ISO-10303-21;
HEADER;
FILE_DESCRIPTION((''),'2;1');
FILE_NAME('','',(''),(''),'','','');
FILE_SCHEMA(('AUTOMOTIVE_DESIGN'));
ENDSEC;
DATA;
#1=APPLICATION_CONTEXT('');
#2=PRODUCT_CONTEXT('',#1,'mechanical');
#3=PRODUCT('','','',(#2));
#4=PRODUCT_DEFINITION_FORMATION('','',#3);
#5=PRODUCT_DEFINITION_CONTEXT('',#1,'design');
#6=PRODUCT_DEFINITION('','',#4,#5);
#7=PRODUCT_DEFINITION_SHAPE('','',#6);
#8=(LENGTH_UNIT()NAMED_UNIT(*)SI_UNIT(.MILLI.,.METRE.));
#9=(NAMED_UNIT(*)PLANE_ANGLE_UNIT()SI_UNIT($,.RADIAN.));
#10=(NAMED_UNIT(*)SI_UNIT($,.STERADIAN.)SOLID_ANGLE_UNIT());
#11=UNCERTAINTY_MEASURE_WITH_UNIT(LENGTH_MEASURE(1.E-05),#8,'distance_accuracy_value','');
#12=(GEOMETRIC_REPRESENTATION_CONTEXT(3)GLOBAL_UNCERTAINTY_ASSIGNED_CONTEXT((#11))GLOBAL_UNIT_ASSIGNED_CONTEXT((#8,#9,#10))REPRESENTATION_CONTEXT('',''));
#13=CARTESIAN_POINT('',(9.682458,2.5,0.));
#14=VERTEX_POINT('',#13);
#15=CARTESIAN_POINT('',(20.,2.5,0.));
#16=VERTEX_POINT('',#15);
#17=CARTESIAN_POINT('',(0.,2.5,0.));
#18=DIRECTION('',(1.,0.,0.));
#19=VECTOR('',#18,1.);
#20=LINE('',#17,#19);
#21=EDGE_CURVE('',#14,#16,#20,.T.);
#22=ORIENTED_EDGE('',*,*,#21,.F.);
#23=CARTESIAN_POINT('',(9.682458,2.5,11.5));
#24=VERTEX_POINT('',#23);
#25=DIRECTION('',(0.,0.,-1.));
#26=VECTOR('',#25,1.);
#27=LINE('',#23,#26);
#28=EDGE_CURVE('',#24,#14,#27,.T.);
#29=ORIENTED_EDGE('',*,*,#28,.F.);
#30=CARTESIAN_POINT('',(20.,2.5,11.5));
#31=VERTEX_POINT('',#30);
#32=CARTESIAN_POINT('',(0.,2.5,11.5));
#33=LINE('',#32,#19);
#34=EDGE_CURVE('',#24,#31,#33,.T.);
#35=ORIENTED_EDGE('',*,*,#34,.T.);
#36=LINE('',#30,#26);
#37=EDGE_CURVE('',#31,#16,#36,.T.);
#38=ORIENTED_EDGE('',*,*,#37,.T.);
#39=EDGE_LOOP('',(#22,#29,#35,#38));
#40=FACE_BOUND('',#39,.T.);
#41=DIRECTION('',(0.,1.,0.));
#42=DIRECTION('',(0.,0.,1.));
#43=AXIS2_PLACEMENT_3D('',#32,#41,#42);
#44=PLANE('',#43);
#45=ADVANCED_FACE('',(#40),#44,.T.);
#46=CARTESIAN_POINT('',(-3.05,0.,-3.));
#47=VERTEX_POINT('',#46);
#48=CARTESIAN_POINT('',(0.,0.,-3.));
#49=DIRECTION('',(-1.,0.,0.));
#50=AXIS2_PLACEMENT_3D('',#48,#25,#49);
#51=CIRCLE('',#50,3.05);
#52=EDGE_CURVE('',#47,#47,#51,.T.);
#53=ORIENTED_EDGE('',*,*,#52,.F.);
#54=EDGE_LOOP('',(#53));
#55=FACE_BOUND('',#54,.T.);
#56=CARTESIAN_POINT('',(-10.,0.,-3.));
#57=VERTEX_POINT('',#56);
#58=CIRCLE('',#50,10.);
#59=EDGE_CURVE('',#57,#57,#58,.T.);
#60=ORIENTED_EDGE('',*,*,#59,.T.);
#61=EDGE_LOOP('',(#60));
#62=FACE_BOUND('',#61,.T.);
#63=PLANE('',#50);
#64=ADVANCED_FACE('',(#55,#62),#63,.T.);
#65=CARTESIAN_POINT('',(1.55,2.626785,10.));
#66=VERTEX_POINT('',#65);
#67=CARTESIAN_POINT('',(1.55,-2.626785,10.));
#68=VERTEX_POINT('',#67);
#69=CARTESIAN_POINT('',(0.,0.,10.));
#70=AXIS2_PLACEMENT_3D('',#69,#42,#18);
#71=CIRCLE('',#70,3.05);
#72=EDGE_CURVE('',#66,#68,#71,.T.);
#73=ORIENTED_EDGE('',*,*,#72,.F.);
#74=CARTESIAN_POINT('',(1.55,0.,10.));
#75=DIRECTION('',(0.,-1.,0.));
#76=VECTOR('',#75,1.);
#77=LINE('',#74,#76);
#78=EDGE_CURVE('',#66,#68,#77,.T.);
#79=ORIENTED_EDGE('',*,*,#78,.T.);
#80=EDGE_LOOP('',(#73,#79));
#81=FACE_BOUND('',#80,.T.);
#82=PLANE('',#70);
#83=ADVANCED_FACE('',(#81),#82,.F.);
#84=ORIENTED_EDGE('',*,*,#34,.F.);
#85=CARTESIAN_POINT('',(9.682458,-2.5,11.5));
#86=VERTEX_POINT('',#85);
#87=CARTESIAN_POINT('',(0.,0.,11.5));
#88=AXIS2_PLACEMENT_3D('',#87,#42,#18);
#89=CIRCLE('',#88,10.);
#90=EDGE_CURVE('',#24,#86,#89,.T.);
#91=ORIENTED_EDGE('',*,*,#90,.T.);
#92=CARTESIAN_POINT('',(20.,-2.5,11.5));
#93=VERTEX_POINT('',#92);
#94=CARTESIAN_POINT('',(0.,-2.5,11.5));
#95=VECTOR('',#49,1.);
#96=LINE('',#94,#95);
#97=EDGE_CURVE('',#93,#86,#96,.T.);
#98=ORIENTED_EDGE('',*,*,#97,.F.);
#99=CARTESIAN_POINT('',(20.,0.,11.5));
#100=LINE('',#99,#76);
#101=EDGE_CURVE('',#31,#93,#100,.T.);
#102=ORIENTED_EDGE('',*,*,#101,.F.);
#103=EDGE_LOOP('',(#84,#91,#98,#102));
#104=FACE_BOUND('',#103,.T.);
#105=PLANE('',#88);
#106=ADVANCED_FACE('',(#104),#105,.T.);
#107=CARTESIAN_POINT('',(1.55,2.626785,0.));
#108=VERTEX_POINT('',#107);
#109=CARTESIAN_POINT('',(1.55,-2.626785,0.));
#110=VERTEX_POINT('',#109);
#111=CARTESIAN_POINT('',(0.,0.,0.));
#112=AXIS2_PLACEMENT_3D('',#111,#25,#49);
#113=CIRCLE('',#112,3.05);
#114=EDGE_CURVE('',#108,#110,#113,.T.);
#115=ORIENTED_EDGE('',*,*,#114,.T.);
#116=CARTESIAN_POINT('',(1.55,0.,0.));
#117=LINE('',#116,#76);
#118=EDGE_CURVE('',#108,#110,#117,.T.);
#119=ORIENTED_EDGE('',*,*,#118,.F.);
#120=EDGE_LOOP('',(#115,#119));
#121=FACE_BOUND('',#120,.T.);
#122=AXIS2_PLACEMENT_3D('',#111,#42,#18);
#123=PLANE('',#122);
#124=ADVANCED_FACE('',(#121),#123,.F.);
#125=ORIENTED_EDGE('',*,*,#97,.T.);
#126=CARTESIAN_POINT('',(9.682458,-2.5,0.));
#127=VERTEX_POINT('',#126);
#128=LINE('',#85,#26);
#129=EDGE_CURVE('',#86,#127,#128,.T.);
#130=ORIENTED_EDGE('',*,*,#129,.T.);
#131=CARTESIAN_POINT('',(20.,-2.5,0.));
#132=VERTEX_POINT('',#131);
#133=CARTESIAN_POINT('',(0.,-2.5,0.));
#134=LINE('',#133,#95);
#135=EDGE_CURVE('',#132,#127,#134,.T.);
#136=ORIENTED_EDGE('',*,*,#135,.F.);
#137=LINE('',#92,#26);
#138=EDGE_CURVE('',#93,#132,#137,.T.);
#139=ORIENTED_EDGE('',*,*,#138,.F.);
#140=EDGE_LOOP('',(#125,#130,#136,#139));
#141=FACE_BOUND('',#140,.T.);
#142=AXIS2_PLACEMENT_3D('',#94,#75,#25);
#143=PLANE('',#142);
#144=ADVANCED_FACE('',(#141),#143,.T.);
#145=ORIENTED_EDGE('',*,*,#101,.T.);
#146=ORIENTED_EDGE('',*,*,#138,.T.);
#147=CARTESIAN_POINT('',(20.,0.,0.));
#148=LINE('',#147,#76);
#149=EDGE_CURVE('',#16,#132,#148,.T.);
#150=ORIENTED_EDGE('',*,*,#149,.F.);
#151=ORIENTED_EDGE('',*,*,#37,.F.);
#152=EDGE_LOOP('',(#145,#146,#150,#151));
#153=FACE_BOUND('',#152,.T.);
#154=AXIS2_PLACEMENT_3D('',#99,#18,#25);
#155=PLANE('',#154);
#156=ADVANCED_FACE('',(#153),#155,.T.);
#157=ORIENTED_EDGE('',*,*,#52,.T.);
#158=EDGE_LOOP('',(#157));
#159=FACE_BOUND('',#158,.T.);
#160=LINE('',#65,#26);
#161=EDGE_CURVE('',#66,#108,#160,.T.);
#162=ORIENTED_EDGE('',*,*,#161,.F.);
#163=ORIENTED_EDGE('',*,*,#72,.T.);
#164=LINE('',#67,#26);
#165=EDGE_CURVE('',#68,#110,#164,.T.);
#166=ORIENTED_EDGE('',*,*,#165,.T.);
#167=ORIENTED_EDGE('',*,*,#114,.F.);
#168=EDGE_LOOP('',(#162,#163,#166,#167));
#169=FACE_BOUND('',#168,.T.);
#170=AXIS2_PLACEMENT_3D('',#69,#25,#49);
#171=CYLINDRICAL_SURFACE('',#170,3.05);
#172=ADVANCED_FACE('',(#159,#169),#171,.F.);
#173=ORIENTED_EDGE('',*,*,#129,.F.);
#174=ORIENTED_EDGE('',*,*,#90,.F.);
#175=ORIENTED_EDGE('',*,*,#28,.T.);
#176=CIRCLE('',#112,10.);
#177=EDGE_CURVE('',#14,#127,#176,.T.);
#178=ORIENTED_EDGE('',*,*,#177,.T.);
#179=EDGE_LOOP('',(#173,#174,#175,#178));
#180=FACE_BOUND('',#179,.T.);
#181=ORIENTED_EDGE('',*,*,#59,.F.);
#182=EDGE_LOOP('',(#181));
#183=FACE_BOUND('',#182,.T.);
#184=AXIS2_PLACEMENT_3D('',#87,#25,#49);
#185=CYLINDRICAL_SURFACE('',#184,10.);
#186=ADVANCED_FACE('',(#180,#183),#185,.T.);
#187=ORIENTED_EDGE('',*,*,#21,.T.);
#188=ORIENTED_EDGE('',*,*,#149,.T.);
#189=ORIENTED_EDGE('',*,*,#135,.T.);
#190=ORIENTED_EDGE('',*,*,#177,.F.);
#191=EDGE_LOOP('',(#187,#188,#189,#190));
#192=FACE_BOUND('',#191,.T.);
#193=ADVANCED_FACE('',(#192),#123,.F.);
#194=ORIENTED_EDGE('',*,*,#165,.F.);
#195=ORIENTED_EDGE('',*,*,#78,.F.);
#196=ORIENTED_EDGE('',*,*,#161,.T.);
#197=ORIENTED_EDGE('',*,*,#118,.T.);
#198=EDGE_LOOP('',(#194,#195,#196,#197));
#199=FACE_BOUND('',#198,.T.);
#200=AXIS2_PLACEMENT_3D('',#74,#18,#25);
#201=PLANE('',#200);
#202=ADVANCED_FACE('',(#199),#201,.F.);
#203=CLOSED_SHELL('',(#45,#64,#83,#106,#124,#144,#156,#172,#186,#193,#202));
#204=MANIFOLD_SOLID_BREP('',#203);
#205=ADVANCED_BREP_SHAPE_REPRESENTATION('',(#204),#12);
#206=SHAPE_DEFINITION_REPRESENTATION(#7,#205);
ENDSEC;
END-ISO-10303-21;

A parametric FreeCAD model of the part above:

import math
import FreeCAD as App
import Part
import Sketcher

doc = App.newDocument("Part")
body = doc.addObject("PartDesign::Body", "Body")

# Sketch on XY plane
sketch1 = body.newObject("Sketcher::SketchObject", "Sketch")
sketch1.AttachmentSupport = (doc.getObject("XY_Plane"), [""])
sketch1.MapMode = "FlatFace"
sketch1.addGeometry([
    Part.LineSegment(App.Vector(20, 2.5, 0), App.Vector(9.682458, 2.5, 0)),
    Part.ArcOfCircle(Part.Circle(App.Vector(0, 0, 0), App.Vector(0, 0, 1), 10), math.radians(14.477512), math.radians(345.522488)),
    Part.LineSegment(App.Vector(9.682458, -2.5, 0), App.Vector(20, -2.5, 0)),
    Part.LineSegment(App.Vector(20, -2.5, 0), App.Vector(20, 2.5, 0)),
], False)
sketch1.addConstraint([
    Sketcher.Constraint("Coincident", 0, 2, 1, 1),
    Sketcher.Constraint("Coincident", 1, 2, 2, 1),
    Sketcher.Constraint("Coincident", 2, 2, 3, 1),
    Sketcher.Constraint("Coincident", 3, 2, 0, 1),
    Sketcher.Constraint("Horizontal", 0),
    Sketcher.Constraint("Horizontal", 2),
    Sketcher.Constraint("Vertical", 3),
    Sketcher.Constraint("Coincident", 1, 3, -1, 1),
    Sketcher.Constraint("Vertical", 0, 2, 1, 2),
    Sketcher.Constraint("Radius", 1, 10.0),
    Sketcher.Constraint("DistanceY", 3, 1, 3, 2, 5.0),
    Sketcher.Constraint("DistanceX", -1, 1, 2, 2, 20.0),
])
pad1 = body.newObject("PartDesign::Pad", "Pad")
pad1.Profile = sketch1
pad1.Length = 11.5

# Sketch on XY plane
sketch2 = body.newObject("Sketcher::SketchObject", "Sketch001")
sketch2.AttachmentSupport = (doc.getObject("XY_Plane"), [""])
sketch2.MapMode = "FlatFace"
sketch2.addGeometry([
    Part.LineSegment(App.Vector(1.55, -2.626785, 0), App.Vector(1.55, 2.626785, 0)),
    Part.ArcOfCircle(Part.Circle(App.Vector(0, 0, 0), App.Vector(0, 0, 1), 3.05), math.radians(59.456211), math.radians(300.543789)),
], False)
sketch2.addConstraint([
    Sketcher.Constraint("Coincident", 0, 1, 1, 2),
    Sketcher.Constraint("Coincident", 1, 1, 0, 2),
    Sketcher.Constraint("Vertical", 0),
    Sketcher.Constraint("Coincident", 1, 3, -1, 1),
    Sketcher.Constraint("Radius", 1, 3.05),
    Sketcher.Constraint("DistanceX", -1, 1, 0, 1, 1.55),
])
pocket1 = body.newObject("PartDesign::Pocket", "Pocket")
pocket1.Profile = sketch2
pocket1.Length = 10
pocket1.Reversed = True

# Sketch on XY plane
sketch3 = body.newObject("Sketcher::SketchObject", "Sketch002")
sketch3.AttachmentSupport = (doc.getObject("XY_Plane"), [""])
sketch3.MapMode = "FlatFace"
sketch3.AttachmentOffset = App.Placement(App.Vector(0, 0, -3), App.Rotation())
sketch3.addGeometry([
    Part.ArcOfCircle(Part.Circle(App.Vector(0, 0, 0), App.Vector(0, 0, 1), 10), math.radians(180), math.radians(345.522488)),  # 0
    Part.ArcOfCircle(Part.Circle(App.Vector(0, 0, 0), App.Vector(0, 0, 1), 10), math.radians(14.477512), math.radians(180)),  # 1
    Part.ArcOfCircle(Part.Circle(App.Vector(0, 0, 0), App.Vector(0, 0, 1), 10), math.radians(-14.477512), math.radians(14.477512)),  # 2
    Part.ArcOfCircle(Part.Circle(App.Vector(0, 0, 0), App.Vector(0, 0, 1), 3.05), math.radians(180), math.radians(300.543789)),  # 3
    Part.ArcOfCircle(Part.Circle(App.Vector(0, 0, 0), App.Vector(0, 0, 1), 3.05), math.radians(-59.456211), math.radians(59.456211)),  # 4
    Part.ArcOfCircle(Part.Circle(App.Vector(0, 0, 0), App.Vector(0, 0, 1), 3.05), math.radians(59.456211), math.radians(180)),  # 5
], False)
sketch3.addConstraint([
    Sketcher.Constraint("Tangent", 0, 1, 1, 2),
    Sketcher.Constraint("Tangent", 1, 1, 2, 2),
    Sketcher.Constraint("Tangent", 2, 1, 0, 2),
    Sketcher.Constraint("Tangent", 3, 2, 4, 1),
    Sketcher.Constraint("Tangent", 4, 2, 5, 1),
    Sketcher.Constraint("Tangent", 5, 2, 3, 1),
    Sketcher.Constraint("Coincident", 0, 3, -1, 1),
    Sketcher.Constraint("Coincident", 3, 3, -1, 1),
    Sketcher.Constraint("PointOnObject", 0, 1, -1),
    Sketcher.Constraint("PointOnObject", 5, 2, -1),
    Sketcher.Constraint("Vertical", 1, 1, 2, 1),
    Sketcher.Constraint("Vertical", 3, 2, 4, 2),
    Sketcher.Constraint("Radius", 0, 10.0),
    Sketcher.Constraint("Radius", 3, 3.05),
    Sketcher.Constraint("DistanceY", 2, 1, 1, 1, 5.0),
    Sketcher.Constraint("DistanceX", -1, 1, 3, 2, 1.55),
])
pad2 = body.newObject("PartDesign::Pad", "Pad001")
pad2.Profile = sketch3
pad2.Length = 3

doc.recompute()
